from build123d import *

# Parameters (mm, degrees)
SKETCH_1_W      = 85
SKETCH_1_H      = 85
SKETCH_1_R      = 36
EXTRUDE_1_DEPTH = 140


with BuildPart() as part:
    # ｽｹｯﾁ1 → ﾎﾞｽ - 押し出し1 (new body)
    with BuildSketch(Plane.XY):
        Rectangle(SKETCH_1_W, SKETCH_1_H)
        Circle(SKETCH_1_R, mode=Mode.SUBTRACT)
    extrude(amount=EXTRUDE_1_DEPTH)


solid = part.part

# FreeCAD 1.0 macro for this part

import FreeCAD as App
import Part
import Sketcher
Q = App.Units.Quantity


def add_polygon(sketch, points):
    """Adds a closed chain of lines whose ends are joined by coincident constraints."""
    first, n = sketch.GeometryCount, len(points)
    for a, b in zip(points, points[1:] + points[:1]):
        sketch.addGeometry(Part.LineSegment(App.Vector(*a, 0), App.Vector(*b, 0)), False)
    for i in range(n):
        sketch.addConstraint(Sketcher.Constraint("Coincident", first + i, 2, first + (i + 1) % n, 1))

doc = App.newDocument("Part")
body = doc.addObject("PartDesign::Body", "Body")

# Sketch on XY plane
sketch1 = body.newObject("Sketcher::SketchObject", "Sketch")
sketch1.AttachmentSupport = (doc.getObject("XY_Plane"), [""])
sketch1.MapMode = "FlatFace"
add_polygon(sketch1, [(-42, 42), (-42, -42), (42, -42), (42, 42)])  # lines 0-3
sketch1.addGeometry(Part.Circle(App.Vector(0, 0, 0), App.Vector(0, 0, 1), 36), False)  # 4
sketch1.addConstraint([
    Sketcher.Constraint("Vertical", 0),
    Sketcher.Constraint("Horizontal", 1),
    Sketcher.Constraint("Vertical", 2),
    Sketcher.Constraint("Horizontal", 3),
    Sketcher.Constraint("Coincident", 4, 3, -1, 1),
    Sketcher.Constraint("Symmetric", 0, 2, 2, 2, -1, 1),
    Sketcher.Constraint("Equal", 3, 0),
    Sketcher.Constraint("Diameter", 4, Q("72 mm")),
    Sketcher.Constraint("DistanceX", 1, 1, 1, 2, Q("85 mm")),
])
pad1 = body.newObject("PartDesign::Pad", "Pad")
pad1.Profile = sketch1
pad1.Length = 140

doc.recompute()
